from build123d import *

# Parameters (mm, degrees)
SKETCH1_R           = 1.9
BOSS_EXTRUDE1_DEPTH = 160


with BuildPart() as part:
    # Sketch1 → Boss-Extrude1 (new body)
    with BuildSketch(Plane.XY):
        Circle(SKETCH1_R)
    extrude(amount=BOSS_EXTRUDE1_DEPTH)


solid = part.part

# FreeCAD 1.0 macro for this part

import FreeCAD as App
import Part
import Sketcher
from FreeCAD import Vector

doc = App.newDocument("Part")
params = doc.addObject("Spreadsheet::Sheet", "Params")
for row, (alias, value) in enumerate([
    ("sketch1_diameter", "3.8 mm"),
    ("pad1_length", "160 mm"),
], start=1):
    params.set(f"A{row}", alias)
    params.set(f"B{row}", "=" + value)
    params.setAlias(f"B{row}", alias)

body = doc.addObject("PartDesign::Body", "Body")

# Sketch on XY plane
sketch1 = doc.addObject("Sketcher::SketchObject", "Sketch")
body.addObject(sketch1)
sketch1.AttachmentSupport = (doc.XY_Plane, [""])
sketch1.MapMode = "FlatFace"
sketch1.addGeometry(Part.Circle(Vector(0, 0, 0), Vector(0, 0, 1), 1.9), False)
sketch1.addConstraint([
    Sketcher.Constraint("Coincident", 0, 3, -1, 1),
    Sketcher.Constraint("Diameter", 0, 3.8),
])
sketch1.setExpression("Constraints[1]", "Params.sketch1_diameter")
pad1 = doc.addObject("PartDesign::Pad", "Pad")
body.addObject(pad1)
pad1.Profile = sketch1
pad1.setExpression("Length", "Params.pad1_length")

doc.recompute()
